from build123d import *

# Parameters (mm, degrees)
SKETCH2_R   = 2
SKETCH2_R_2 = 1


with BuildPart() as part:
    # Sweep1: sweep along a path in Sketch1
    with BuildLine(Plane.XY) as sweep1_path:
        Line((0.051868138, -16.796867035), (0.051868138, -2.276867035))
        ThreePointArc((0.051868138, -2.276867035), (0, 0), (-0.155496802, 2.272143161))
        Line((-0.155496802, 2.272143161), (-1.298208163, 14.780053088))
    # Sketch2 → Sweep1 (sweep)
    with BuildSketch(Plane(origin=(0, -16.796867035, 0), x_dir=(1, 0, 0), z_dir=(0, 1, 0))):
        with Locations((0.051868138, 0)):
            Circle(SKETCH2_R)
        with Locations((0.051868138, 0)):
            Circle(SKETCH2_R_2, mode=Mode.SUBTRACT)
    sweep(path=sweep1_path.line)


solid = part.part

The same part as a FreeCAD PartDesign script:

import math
import FreeCAD as App
import Part
import Sketcher
Q = App.Units.Quantity

doc = App.newDocument("Part")
body = doc.addObject("PartDesign::Body", "Body")

sketch1 = body.newObject("Sketcher::SketchObject", "Sketch")
sketch1.AttachmentSupport = (doc.getObject("XZ_Plane"), [""])
sketch1.MapMode = "FlatFace"
sketch1.AttachmentOffset = App.Placement(App.Vector(0, 0, 16.796867), App.Rotation())
sketch1.addGeometry([
    Part.Circle(App.Vector(0.051868, 0, 0), App.Vector(0, 0, 1), 2),
    Part.Circle(App.Vector(0.051868, 0, 0), App.Vector(0, 0, 1), 1),
], False)
sketch1.addConstraint([
    Sketcher.Constraint("Coincident", 1, 3, 0, 3),
    Sketcher.Constraint("PointOnObject", 0, 3, -1),
    Sketcher.Constraint("Diameter", 0, Q("4 mm")),
    Sketcher.Constraint("Diameter", 1, Q("2 mm")),
    Sketcher.Constraint("DistanceX", -1, 1, 0, 3, Q("0.051868 mm")),
])

sketch2 = body.newObject("Sketcher::SketchObject", "Sketch001")
sketch2.AttachmentSupport = (doc.getObject("XY_Plane"), [""])
sketch2.MapMode = "FlatFace"
sketch2.addGeometry([
    Part.LineSegment(App.Vector(0.051868, -16.796867, 0), App.Vector(0.051868, -2.276867, 0)),
    Part.ArcOfCircle(Part.Circle(App.Vector(-49.948132, -2.276867, 0), App.Vector(0, 0, 1), 50), math.radians(0), math.radians(5.22)),
    Part.LineSegment(App.Vector(-0.155497, 2.272143, 0), App.Vector(-1.298208, 14.780053, 0)),
], False)
sketch2.addConstraint([
    Sketcher.Constraint("Tangent", 0, 2, 1, 1),
    Sketcher.Constraint("Tangent", 1, 2, 2, 1),
    Sketcher.Constraint("Vertical", 0),
    Sketcher.Constraint("Radius", 1, Q("50 mm")),
    Sketcher.Constraint("DistanceY", 0, 1, 0, 2, Q("14.52 mm")),
    Sketcher.Constraint("Angle", 2, Q("95.22 deg")),
    Sketcher.Constraint("Distance", 2, Q("12.56 mm")),
    Sketcher.Constraint("DistanceX", 1, 3, -1, 1, Q("49.948132 mm")),
    Sketcher.Constraint("DistanceY", 1, 3, -1, 1, Q("2.276867 mm")),
])
doc.recompute()

additivepipe = body.newObject("PartDesign::AdditivePipe", "AdditivePipe")
additivepipe.Profile = sketch1
additivepipe.Spine = (sketch2, ["Edge1", "Edge2", "Edge3"])

doc.recompute()
